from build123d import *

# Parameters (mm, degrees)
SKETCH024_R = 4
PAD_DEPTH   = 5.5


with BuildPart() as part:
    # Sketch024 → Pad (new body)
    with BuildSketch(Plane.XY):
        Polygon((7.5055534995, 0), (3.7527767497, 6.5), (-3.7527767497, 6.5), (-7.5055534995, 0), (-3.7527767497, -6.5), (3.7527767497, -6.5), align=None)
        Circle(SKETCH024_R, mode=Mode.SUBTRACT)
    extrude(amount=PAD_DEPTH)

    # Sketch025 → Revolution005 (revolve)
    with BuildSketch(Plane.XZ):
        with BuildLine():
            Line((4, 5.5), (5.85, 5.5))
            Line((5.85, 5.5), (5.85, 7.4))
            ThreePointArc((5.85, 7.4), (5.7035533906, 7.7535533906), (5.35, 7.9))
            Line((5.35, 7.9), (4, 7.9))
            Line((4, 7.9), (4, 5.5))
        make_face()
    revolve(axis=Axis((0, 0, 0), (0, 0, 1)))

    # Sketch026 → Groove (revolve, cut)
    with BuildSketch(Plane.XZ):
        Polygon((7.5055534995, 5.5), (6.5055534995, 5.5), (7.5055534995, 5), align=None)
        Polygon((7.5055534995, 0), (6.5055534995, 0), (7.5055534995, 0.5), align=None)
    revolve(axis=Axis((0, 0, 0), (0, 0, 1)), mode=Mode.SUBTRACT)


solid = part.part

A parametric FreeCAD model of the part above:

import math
import FreeCAD as App
import Part
import Sketcher
from FreeCAD import Vector
Q = App.Units.Quantity


def add_polygon(sketch, points):
    """Adds a closed chain of lines whose ends are joined by coincident constraints."""
    first, n = sketch.GeometryCount, len(points)
    for a, b in zip(points, points[1:] + points[:1]):
        sketch.addGeometry(Part.LineSegment(App.Vector(*a, 0), App.Vector(*b, 0)), False)
    for i in range(n):
        sketch.addConstraint(Sketcher.Constraint("Coincident", first + i, 2, first + (i + 1) % n, 1))

doc = App.newDocument("Part")
body = doc.addObject("PartDesign::Body", "Body")

# Sketch on XY plane
sketch1 = body.newObject("Sketcher::SketchObject", "Sketch")
sketch1.AttachmentSupport = (doc.getObject("XY_Plane"), [""])
sketch1.MapMode = "FlatFace"
add_polygon(sketch1, [(7.5, 0), (3.8, 6.5), (-3.8, 6.5), (-7.5, 0), (-3.8, -6.5), (3.8, -6.5)])  # lines 0-5
sketch1.addGeometry(Part.Circle(Vector(0, 0, 0), Vector(0, 0, 1), 4), False)  # 6
sketch1.addConstraint(Sketcher.Constraint("Horizontal", 1))
sketch1.addConstraint(Sketcher.Constraint("Horizontal", 4))
sketch1.addConstraint(Sketcher.Constraint("Coincident", 6, 3, -1, 1))
sketch1.addConstraint(Sketcher.Constraint("Symmetric", 0, 2, 3, 2, -1, 1))
sketch1.addConstraint(Sketcher.Constraint("Symmetric", 2, 2, 5, 2, -1, 1))
sketch1.addConstraint(Sketcher.Constraint("PointOnObject", 2, 2, -1))
sketch1.addConstraint(Sketcher.Constraint("Parallel", 2, 5))
sketch1.addConstraint(Sketcher.Constraint("Vertical", 1, 2, 3, 2))
sketch1.addConstraint(Sketcher.Constraint("Diameter", 6, 8.0))
sketch1.addConstraint(Sketcher.Constraint("Angle", 0, Q("120 deg")))
sketch1.addConstraint(Sketcher.Constraint("DistanceY", 3, 2, 1, 2, 13.0))
sketch1.addConstraint(Sketcher.Constraint("DistanceX", 1, 2, 1, 1, 7.505554))
pad1 = body.newObject("PartDesign::Pad", "Pad")
pad1.Profile = sketch1
pad1.Length = 5.5

# Sketch on XZ plane
sketch2 = body.newObject("Sketcher::SketchObject", "Sketch001")
sketch2.AttachmentSupport = (doc.getObject("XZ_Plane"), [""])
sketch2.MapMode = "FlatFace"
sketch2.addGeometry(Part.LineSegment(Vector(4, 5.5, 0), Vector(5.8, 5.5, 0)), False)
sketch2.addGeometry(Part.LineSegment(Vector(5.8, 5.5, 0), Vector(5.8, 7.4, 0)), False)
sketch2.addGeometry(Part.ArcOfCircle(Part.Circle(Vector(5.3, 7.4, 0), Vector(0, 0, 1), 0.5), math.radians(0), math.radians(90)), False)
sketch2.addGeometry(Part.LineSegment(Vector(5.3, 7.9, 0), Vector(4, 7.9, 0)), False)
sketch2.addGeometry(Part.LineSegment(Vector(4, 7.9, 0), Vector(4, 5.5, 0)), False)
sketch2.addConstraint(Sketcher.Constraint("Coincident", 0, 2, 1, 1))
sketch2.addConstraint(Sketcher.Constraint("Tangent", 1, 2, 2, 1))
sketch2.addConstraint(Sketcher.Constraint("Tangent", 2, 2, 3, 1))
sketch2.addConstraint(Sketcher.Constraint("Coincident", 3, 2, 4, 1))
sketch2.addConstraint(Sketcher.Constraint("Coincident", 4, 2, 0, 1))
sketch2.addConstraint(Sketcher.Constraint("Horizontal", 0))
sketch2.addConstraint(Sketcher.Constraint("Vertical", 1))
sketch2.addConstraint(Sketcher.Constraint("Horizontal", 3))
sketch2.addConstraint(Sketcher.Constraint("Vertical", 4))
sketch2.addConstraint(Sketcher.Constraint("Radius", 2, 0.5))
sketch2.addConstraint(Sketcher.Constraint("DistanceY", 1, 1, 1, 2, 1.9))
sketch2.addConstraint(Sketcher.Constraint("DistanceX", -1, 1, 3, 2, 4.0))
sketch2.addConstraint(Sketcher.Constraint("DistanceX", 0, 1, 0, 2, 1.85))
sketch2.addConstraint(Sketcher.Constraint("DistanceY", -1, 1, 2, 3, 7.4))
revolution = body.newObject("PartDesign::Revolution", "Revolution")
revolution.Profile = sketch2
revolution.ReferenceAxis = (sketch2, ["V_Axis"])
revolution.Angle = 360

# Sketch on XZ plane
sketch3 = body.newObject("Sketcher::SketchObject", "Sketch002")
sketch3.AttachmentSupport = (doc.getObject("XZ_Plane"), [""])
sketch3.MapMode = "FlatFace"
add_polygon(sketch3, [(7.5, 5.5), (6.5, 5.5), (7.5, 5)])  # lines 0-2
add_polygon(sketch3, [(6.5, 0), (7.5, 0), (7.5, 0.5)])  # lines 3-5
sketch3.addConstraint(Sketcher.Constraint("Horizontal", 0))
sketch3.addConstraint(Sketcher.Constraint("Vertical", 2))
sketch3.addConstraint(Sketcher.Constraint("Horizontal", 3))
sketch3.addConstraint(Sketcher.Constraint("Vertical", 4))
sketch3.addConstraint(Sketcher.Constraint("PointOnObject", 3, 2, -1))
sketch3.addConstraint(Sketcher.Constraint("Vertical", 2, 2, 3, 2))
sketch3.addConstraint(Sketcher.Constraint("Vertical", 0, 2, 5, 2))
sketch3.addConstraint(Sketcher.Constraint("Equal", 2, 4))
sketch3.addConstraint(Sketcher.Constraint("DistanceX", 0, 2, 0, 1, 1.0))
sketch3.addConstraint(Sketcher.Constraint("DistanceY", 2, 1, 2, 2, 0.5))
sketch3.addConstraint(Sketcher.Constraint("DistanceY", -1, 1, 1, 2, 5.0))
sketch3.addConstraint(Sketcher.Constraint("DistanceX", -1, 1, 0, 2, 6.505554))
groove = body.newObject("PartDesign::Groove", "Groove")
groove.Profile = sketch3
groove.ReferenceAxis = (sketch3, ["V_Axis"])
groove.Angle = 360

doc.recompute()
